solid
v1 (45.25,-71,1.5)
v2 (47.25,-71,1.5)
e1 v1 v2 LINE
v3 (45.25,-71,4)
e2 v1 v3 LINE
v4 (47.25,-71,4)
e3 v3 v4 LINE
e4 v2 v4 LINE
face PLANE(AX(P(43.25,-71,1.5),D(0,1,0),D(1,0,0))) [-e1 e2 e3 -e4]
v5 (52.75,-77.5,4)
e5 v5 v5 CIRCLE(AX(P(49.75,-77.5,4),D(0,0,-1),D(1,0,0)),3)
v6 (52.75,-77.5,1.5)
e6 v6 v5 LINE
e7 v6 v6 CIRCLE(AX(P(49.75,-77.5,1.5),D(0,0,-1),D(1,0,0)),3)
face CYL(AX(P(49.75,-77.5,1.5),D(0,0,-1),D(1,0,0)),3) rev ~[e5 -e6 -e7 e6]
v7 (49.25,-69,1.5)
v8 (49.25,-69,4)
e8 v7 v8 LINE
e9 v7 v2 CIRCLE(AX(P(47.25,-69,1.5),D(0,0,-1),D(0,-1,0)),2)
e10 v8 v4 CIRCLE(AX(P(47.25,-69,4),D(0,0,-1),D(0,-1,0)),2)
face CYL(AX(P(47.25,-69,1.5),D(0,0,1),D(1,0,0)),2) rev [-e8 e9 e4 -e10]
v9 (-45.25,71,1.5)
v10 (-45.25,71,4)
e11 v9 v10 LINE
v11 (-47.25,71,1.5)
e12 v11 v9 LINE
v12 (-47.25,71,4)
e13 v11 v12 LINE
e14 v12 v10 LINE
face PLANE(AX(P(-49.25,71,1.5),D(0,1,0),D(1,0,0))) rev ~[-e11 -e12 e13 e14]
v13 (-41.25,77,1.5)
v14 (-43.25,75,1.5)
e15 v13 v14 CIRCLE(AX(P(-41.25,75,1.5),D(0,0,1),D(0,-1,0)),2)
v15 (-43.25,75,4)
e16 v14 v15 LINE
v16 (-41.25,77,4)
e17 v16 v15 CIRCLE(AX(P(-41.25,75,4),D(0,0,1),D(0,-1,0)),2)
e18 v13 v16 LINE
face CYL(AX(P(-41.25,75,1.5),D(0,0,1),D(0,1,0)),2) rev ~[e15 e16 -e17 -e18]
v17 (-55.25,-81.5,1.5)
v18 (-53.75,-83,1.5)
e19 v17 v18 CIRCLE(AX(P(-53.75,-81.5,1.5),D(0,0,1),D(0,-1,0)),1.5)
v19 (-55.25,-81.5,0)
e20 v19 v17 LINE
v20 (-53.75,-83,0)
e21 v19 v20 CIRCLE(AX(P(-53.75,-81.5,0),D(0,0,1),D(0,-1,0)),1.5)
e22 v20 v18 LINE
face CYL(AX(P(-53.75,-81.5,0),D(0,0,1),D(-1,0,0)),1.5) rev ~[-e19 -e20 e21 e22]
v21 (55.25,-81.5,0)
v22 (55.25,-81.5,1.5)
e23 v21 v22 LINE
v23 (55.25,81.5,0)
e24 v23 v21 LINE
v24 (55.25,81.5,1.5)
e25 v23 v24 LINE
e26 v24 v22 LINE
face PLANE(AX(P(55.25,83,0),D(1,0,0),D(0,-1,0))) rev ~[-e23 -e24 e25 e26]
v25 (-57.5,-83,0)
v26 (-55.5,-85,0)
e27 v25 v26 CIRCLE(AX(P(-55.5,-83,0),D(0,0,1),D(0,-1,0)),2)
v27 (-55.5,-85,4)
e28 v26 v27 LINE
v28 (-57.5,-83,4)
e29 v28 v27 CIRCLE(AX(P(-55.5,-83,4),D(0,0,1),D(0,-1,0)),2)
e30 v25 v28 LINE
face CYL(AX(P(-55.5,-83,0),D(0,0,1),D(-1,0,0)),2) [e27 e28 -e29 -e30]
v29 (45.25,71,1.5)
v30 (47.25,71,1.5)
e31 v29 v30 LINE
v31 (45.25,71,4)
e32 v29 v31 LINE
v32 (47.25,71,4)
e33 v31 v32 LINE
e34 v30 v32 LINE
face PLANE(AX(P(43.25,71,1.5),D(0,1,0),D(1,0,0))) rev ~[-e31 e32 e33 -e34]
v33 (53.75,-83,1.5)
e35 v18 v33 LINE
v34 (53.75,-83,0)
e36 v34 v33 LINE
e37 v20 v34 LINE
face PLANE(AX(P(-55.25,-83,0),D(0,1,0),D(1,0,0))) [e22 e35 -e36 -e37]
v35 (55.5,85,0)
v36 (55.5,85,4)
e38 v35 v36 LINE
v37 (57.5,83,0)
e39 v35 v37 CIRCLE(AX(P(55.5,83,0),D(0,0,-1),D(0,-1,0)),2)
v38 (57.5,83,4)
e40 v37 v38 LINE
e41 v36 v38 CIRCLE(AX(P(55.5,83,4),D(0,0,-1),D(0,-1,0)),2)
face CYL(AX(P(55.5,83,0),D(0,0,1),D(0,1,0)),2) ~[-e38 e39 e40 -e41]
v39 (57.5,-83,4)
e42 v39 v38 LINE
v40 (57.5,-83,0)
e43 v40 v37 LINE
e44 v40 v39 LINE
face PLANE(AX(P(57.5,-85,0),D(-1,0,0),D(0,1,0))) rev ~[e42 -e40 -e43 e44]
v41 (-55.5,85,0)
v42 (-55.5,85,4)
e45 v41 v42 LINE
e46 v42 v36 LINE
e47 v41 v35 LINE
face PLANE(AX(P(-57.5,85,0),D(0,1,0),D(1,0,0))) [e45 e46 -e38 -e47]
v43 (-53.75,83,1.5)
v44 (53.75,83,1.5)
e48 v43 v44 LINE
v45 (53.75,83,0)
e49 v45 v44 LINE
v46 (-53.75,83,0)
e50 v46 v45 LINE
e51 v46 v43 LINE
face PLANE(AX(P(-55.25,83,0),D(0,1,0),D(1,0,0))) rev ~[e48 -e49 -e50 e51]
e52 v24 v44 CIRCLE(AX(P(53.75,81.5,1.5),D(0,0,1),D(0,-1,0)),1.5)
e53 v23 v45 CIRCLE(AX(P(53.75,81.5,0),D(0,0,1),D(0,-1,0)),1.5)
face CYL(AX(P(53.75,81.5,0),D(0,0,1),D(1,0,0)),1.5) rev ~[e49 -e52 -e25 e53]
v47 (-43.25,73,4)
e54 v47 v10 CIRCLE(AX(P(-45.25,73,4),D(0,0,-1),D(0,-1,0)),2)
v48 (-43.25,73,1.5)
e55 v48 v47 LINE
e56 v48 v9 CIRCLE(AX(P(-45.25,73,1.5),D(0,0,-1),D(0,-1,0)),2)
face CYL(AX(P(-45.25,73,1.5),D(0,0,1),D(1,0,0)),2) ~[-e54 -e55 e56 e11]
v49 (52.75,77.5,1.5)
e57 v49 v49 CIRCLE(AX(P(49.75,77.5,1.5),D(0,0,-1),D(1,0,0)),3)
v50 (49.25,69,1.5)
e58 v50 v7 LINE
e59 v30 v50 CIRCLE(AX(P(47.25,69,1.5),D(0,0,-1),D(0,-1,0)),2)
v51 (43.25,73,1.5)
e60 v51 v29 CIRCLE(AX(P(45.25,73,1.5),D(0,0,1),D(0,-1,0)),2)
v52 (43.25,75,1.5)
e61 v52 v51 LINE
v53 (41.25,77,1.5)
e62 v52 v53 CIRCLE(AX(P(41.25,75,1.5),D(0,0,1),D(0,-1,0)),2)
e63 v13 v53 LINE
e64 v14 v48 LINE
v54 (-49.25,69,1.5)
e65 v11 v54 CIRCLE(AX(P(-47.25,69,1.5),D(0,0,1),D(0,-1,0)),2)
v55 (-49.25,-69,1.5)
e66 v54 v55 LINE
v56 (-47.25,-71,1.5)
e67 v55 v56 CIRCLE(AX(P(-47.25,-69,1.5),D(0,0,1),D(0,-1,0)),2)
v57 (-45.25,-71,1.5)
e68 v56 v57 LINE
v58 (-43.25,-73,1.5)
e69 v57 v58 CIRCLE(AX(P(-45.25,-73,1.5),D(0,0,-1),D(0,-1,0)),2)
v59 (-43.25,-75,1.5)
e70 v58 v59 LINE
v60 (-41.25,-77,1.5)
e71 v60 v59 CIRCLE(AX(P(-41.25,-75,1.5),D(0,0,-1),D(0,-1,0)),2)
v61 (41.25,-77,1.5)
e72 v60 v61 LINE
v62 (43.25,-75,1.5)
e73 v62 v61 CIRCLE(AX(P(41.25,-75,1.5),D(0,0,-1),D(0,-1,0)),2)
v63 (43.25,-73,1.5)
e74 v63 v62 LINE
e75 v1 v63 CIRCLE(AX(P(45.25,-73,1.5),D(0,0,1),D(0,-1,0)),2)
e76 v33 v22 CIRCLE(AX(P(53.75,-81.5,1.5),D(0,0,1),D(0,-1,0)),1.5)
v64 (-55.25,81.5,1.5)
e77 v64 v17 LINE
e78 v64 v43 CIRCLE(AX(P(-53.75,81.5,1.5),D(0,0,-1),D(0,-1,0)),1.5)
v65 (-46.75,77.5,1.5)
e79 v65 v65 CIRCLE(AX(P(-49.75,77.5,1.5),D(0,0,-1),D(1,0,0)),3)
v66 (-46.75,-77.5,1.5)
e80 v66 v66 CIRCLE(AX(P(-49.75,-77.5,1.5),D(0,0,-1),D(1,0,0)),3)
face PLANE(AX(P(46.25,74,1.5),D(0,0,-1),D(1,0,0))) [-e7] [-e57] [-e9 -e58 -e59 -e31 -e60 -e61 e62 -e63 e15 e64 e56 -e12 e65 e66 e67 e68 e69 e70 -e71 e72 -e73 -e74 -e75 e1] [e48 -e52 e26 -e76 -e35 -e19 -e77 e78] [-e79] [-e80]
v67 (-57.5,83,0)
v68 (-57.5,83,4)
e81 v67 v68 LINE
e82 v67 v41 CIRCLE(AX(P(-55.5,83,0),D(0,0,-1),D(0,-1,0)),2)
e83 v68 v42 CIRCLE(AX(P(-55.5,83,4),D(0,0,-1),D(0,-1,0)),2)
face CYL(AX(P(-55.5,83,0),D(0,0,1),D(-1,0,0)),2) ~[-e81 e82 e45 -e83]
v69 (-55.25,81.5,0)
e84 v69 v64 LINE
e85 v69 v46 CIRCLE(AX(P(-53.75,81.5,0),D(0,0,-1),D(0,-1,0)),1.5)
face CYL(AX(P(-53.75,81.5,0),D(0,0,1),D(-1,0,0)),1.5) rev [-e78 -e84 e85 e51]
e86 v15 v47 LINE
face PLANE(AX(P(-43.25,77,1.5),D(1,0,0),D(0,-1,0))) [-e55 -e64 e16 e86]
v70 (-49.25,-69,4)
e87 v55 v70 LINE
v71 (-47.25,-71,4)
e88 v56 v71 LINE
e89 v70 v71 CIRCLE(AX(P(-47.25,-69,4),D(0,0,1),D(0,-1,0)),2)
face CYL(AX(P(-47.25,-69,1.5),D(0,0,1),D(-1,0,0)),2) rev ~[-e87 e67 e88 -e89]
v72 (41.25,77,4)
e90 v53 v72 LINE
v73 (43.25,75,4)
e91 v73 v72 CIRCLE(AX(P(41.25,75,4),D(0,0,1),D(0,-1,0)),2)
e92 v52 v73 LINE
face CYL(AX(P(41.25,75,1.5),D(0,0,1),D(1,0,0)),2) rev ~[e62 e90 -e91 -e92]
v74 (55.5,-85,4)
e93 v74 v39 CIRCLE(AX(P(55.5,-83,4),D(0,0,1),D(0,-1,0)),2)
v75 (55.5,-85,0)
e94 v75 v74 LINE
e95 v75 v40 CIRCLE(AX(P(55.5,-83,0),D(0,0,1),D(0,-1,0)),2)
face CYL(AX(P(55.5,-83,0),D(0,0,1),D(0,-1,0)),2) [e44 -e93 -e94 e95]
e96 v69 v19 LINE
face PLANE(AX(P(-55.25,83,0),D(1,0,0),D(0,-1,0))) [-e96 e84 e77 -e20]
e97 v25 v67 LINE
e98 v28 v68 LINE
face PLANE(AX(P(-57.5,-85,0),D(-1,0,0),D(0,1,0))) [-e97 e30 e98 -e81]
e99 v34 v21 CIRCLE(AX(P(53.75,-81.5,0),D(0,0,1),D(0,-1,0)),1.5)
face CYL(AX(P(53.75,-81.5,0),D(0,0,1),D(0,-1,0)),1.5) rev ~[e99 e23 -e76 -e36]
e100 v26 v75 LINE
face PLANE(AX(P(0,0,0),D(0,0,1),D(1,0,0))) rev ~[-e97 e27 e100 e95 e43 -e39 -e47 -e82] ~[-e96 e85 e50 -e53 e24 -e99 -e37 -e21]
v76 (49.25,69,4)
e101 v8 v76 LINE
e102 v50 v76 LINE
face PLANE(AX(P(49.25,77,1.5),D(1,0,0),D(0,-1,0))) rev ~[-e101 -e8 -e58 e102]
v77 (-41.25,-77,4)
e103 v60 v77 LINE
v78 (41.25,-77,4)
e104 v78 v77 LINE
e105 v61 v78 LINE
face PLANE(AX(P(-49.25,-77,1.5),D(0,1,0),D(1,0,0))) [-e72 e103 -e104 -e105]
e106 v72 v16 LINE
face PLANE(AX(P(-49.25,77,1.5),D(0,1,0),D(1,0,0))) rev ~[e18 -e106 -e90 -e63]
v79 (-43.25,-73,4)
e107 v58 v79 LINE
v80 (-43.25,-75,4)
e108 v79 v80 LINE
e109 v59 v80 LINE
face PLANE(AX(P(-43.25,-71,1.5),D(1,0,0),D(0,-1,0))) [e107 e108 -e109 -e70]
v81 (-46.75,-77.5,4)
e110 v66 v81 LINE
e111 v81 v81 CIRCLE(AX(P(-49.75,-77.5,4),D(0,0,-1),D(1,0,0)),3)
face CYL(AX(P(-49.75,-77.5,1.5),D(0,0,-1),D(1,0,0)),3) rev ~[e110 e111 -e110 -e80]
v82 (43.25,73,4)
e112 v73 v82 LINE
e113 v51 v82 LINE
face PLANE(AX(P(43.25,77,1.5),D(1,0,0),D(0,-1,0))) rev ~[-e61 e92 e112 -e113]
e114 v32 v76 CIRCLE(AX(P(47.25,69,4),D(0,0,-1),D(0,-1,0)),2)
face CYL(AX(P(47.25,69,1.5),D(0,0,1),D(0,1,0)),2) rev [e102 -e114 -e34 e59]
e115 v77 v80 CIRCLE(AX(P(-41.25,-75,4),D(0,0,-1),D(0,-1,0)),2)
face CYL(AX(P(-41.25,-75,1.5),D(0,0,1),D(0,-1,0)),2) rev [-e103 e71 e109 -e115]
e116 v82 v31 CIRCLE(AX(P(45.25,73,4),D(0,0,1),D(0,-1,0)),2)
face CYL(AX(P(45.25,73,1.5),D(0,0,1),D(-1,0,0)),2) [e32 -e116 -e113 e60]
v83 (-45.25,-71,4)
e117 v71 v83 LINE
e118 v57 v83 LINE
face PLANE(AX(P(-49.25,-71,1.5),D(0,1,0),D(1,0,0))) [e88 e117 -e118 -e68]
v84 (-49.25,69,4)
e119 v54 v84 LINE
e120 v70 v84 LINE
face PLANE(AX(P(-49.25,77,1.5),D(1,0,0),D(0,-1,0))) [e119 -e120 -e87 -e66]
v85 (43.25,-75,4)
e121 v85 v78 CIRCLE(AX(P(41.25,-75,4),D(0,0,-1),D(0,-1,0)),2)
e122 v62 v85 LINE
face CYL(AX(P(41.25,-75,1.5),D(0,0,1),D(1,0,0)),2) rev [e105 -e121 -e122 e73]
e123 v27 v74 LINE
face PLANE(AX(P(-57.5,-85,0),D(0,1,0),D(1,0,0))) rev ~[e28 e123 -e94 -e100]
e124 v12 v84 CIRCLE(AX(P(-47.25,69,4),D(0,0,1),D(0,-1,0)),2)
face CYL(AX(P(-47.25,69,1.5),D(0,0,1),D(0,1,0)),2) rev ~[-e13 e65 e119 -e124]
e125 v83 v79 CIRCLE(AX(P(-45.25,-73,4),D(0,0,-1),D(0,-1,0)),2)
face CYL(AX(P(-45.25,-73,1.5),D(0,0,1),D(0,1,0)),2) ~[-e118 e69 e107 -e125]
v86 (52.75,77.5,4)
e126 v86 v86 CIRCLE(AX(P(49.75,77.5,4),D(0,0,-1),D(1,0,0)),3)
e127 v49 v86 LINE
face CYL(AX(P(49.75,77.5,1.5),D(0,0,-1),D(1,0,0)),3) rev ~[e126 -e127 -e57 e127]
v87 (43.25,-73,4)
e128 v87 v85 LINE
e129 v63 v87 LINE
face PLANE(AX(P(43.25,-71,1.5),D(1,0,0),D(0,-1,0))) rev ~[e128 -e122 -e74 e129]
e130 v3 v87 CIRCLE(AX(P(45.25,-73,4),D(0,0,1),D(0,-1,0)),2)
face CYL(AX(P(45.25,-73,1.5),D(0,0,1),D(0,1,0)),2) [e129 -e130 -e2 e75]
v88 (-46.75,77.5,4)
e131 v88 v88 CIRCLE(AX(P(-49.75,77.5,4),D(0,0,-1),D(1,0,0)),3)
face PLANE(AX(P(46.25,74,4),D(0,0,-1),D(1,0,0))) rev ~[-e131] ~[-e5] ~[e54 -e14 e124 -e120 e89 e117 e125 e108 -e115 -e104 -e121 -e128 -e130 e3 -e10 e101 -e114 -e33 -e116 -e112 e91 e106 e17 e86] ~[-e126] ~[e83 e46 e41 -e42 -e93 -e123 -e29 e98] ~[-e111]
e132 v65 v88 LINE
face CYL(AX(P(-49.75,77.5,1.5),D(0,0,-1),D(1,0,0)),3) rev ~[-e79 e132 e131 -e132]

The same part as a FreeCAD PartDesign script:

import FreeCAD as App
import Part
import Sketcher
from FreeCAD import Vector


def edges_at(feature, points):
    """Names of the edges that pass closest to the given points."""
    edges = feature.Shape.Edges
    near = lambda p: min(range(len(edges)), key=lambda i: edges[i].distToShape(Part.Vertex(*p))[0])
    return sorted({f"Edge{near(p) + 1}" for p in points})


def add_polygon(sketch, points):
    """Adds a closed chain of lines whose ends are joined by coincident constraints."""
    first, n = sketch.GeometryCount, len(points)
    for a, b in zip(points, points[1:] + points[:1]):
        sketch.addGeometry(Part.LineSegment(App.Vector(*a, 0), App.Vector(*b, 0)), False)
    for i in range(n):
        sketch.addConstraint(Sketcher.Constraint("Coincident", first + i, 2, first + (i + 1) % n, 1))

doc = App.newDocument("Part")
body = doc.addObject("PartDesign::Body", "Body")

# Sketch on XY plane
sketch1 = body.newObject("Sketcher::SketchObject", "Sketch")
sketch1.AttachmentSupport = (doc.getObject("XY_Plane"), [""])
sketch1.MapMode = "FlatFace"
add_polygon(sketch1, [(-57.5, 85), (-57.5, -85), (57.5, -85), (57.5, 85)])  # lines 0-3
sketch1.addConstraint([
    Sketcher.Constraint("Vertical", 0),
    Sketcher.Constraint("Horizontal", 1),
    Sketcher.Constraint("Vertical", 2),
    Sketcher.Constraint("Horizontal", 3),
    Sketcher.Constraint("Symmetric", 0, 2, 2, 2, -1, 1),
    Sketcher.Constraint("DistanceX", 1, 1, 1, 2, 115.0),
    Sketcher.Constraint("DistanceY", 0, 2, 0, 1, 170.0),
])
pad1 = body.newObject("PartDesign::Pad", "Pad")
pad1.Profile = sketch1
pad1.Length = 4

# Sketch on XY plane
sketch2 = body.newObject("Sketcher::SketchObject", "Sketch001")
sketch2.AttachmentSupport = (doc.getObject("XY_Plane"), [""])
sketch2.MapMode = "FlatFace"
add_polygon(sketch2, [(-55.25, -83), (-55.25, 83), (55.25, 83), (55.25, -83)])  # lines 0-3
sketch2.addConstraint([
    Sketcher.Constraint("Vertical", 0),
    Sketcher.Constraint("Horizontal", 1),
    Sketcher.Constraint("Vertical", 2),
    Sketcher.Constraint("Horizontal", 3),
    Sketcher.Constraint("Symmetric", 0, 2, 2, 2, -1, 1),
    Sketcher.Constraint("DistanceY", 0, 1, 0, 2, 166.0),
    Sketcher.Constraint("DistanceX", 1, 1, 1, 2, 110.5),
])
pocket1 = body.newObject("PartDesign::Pocket", "Pocket")
pocket1.Profile = sketch2
pocket1.Length = 1.5
pocket1.Reversed = True

# Sketch on XY plane
sketch3 = body.newObject("Sketcher::SketchObject", "Sketch002")
sketch3.AttachmentSupport = (doc.getObject("XY_Plane"), [""])
sketch3.MapMode = "FlatFace"
sketch3.AttachmentOffset = App.Placement(Vector(0, 0, 1.5), App.Rotation())
add_polygon(sketch3, [(-49.25, -77), (-49.25, 77), (49.25, 77), (49.25, -77)])  # lines 0-3
sketch3.addConstraint([
    Sketcher.Constraint("Vertical", 0),
    Sketcher.Constraint("Horizontal", 1),
    Sketcher.Constraint("Vertical", 2),
    Sketcher.Constraint("Horizontal", 3),
    Sketcher.Constraint("Symmetric", 0, 2, 2, 2, -1, 1),
    Sketcher.Constraint("DistanceY", 0, 1, 0, 2, 154.0),
    Sketcher.Constraint("DistanceX", 1, 1, 1, 2, 98.5),
])
pocket2 = body.newObject("PartDesign::Pocket", "Pocket001")
pocket2.Profile = sketch3
pocket2.Type = "ThroughAll"
pocket2.Reversed = True

# Sketch on XY plane
sketch4 = body.newObject("Sketcher::SketchObject", "Sketch003")
sketch4.AttachmentSupport = (doc.getObject("XY_Plane"), [""])
sketch4.MapMode = "FlatFace"
sketch4.AttachmentOffset = App.Placement(Vector(0, 0, 1.5), App.Rotation())
add_polygon(sketch4, [(43.25, 71), (43.25, 77), (49.25, 77), (49.25, 71)])  # lines 0-3
add_polygon(sketch4, [(-49.25, 71), (-49.25, 77), (-43.25, 77), (-43.25, 71)])  # lines 4-7
add_polygon(sketch4, [(-49.25, -77), (-49.25, -71), (-43.25, -71), (-43.25, -77)])  # lines 8-11
add_polygon(sketch4, [(43.25, -77), (43.25, -71), (49.25, -71), (49.25, -77)])  # lines 12-15
sketch4.addConstraint([
    Sketcher.Constraint("Vertical", 0),
    Sketcher.Constraint("Horizontal", 1),
    Sketcher.Constraint("Vertical", 2),
    Sketcher.Constraint("Horizontal", 3),
    Sketcher.Constraint("Vertical", 4),
    Sketcher.Constraint("Horizontal", 5),
    Sketcher.Constraint("Vertical", 6),
    Sketcher.Constraint("Horizontal", 7),
    Sketcher.Constraint("Vertical", 8),
    Sketcher.Constraint("Horizontal", 9),
    Sketcher.Constraint("Vertical", 10),
    Sketcher.Constraint("Horizontal", 11),
    Sketcher.Constraint("Vertical", 12),
    Sketcher.Constraint("Horizontal", 13),
    Sketcher.Constraint("Vertical", 14),
    Sketcher.Constraint("Horizontal", 15),
    Sketcher.Constraint("Symmetric", 2, 2, 8, 2, -1, 1),
    Sketcher.Constraint("Symmetric", 0, 2, 10, 2, -1, 1),
    Sketcher.Constraint("Symmetric", 6, 2, 12, 2, -1, 1),
    Sketcher.Constraint("Symmetric", 4, 2, 14, 2, -1, 1),
    Sketcher.Constraint("Symmetric", 1, 2, 4, 2, -2),
    Sketcher.Constraint("Symmetric", 3, 2, 6, 2, -2),
    Sketcher.Constraint("Equal", 15, 0),
    Sketcher.Constraint("DistanceX", 1, 1, 1, 2, 6.0),
    Sketcher.Constraint("DistanceY", -1, 1, 0, 2, 77.0),
    Sketcher.Constraint("DistanceX", 4, 2, 0, 2, 92.5),
])
pad2 = body.newObject("PartDesign::Pad", "Pad001")
pad2.Profile = sketch4
pad2.Length = 2.5

# Sketch on XY plane
sketch5 = body.newObject("Sketcher::SketchObject", "Sketch004")
sketch5.AttachmentSupport = (doc.getObject("XY_Plane"), [""])
sketch5.MapMode = "FlatFace"
sketch5.AttachmentOffset = App.Placement(Vector(0, 0, 1.5), App.Rotation())
sketch5.addGeometry([
    Part.Circle(Vector(49.75, 77.5, 0), Vector(0, 0, 1), 3),
    Part.Circle(Vector(-49.75, 77.5, 0), Vector(0, 0, 1), 3),
    Part.Circle(Vector(-49.75, -77.5, 0), Vector(0, 0, 1), 3),
    Part.Circle(Vector(49.75, -77.5, 0), Vector(0, 0, 1), 3),
], False)
sketch5.addConstraint([
    Sketcher.Constraint("Equal", 0, 1),
    Sketcher.Constraint("Equal", 1, 2),
    Sketcher.Constraint("Equal", 2, 3),
    Sketcher.Constraint("Symmetric", 0, 3, 2, 3, -1, 1),
    Sketcher.Constraint("Symmetric", 1, 3, 3, 3, -1, 1),
    Sketcher.Constraint("Symmetric", 0, 3, 1, 3, -2),
    Sketcher.Constraint("Diameter", 0, 6.0),
    Sketcher.Constraint("DistanceY", 2, 3, 1, 3, 155.0),
    Sketcher.Constraint("DistanceX", 1, 3, 0, 3, 99.5),
])
pocket3 = body.newObject("PartDesign::Pocket", "Pocket002")
pocket3.Profile = sketch5
pocket3.Type = "ThroughAll"
pocket3.Reversed = True
doc.recompute()

fillet = body.newObject("PartDesign::Fillet", "Fillet")
fillet.Base = (pocket3, edges_at(pocket3, [
    (-43.25, 77, 2.75),
    (-43.25, 71, 2.75),
    (-49.25, 71, 2.75),
    (49.25, 71, 2.75),
    (43.25, 71, 2.75),
    (43.25, 77, 2.75),
    (49.25, -71, 2.75),
    (43.25, -71, 2.75),
    (43.25, -77, 2.75),
    (-43.25, -77, 2.75),
    (-43.25, -71, 2.75),
    (-49.25, -71, 2.75),
]))
fillet.Radius = 2
doc.recompute()

fillet2 = body.newObject("PartDesign::Fillet", "Fillet001")
fillet2.Base = (fillet, edges_at(fillet, [
    (-57.5, 85, 2),
    (57.5, 85, 2),
    (57.5, -85, 2),
    (-57.5, -85, 2),
]))
fillet2.Radius = 2
doc.recompute()

fillet3 = body.newObject("PartDesign::Fillet", "Fillet002")
fillet3.Base = (fillet2, edges_at(fillet2, [
    (55.25, 83, 0.75),
    (-55.25, 83, 0.75),
    (-55.25, -83, 0.75),
    (55.25, -83, 0.75),
]))
fillet3.Radius = 1.5

doc.recompute()
